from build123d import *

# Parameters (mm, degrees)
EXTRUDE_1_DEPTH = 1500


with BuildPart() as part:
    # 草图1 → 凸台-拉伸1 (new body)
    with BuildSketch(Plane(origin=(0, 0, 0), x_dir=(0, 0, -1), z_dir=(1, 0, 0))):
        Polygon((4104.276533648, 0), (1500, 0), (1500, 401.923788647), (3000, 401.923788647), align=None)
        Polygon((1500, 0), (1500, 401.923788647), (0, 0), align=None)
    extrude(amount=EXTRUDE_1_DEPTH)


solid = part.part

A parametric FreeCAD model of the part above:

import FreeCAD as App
import Part
import Sketcher
from FreeCAD import Vector
Q = App.Units.Quantity

doc = App.newDocument("Part")
body = doc.addObject("PartDesign::Body", "Body")

# Sketch on YZ plane
sketch1 = body.newObject("Sketcher::SketchObject", "Sketch")
sketch1.AttachmentSupport = (doc.getObject("YZ_Plane"), [""])
sketch1.MapMode = "FlatFace"
sketch1.addGeometry(Part.LineSegment(Vector(0, 0, 0), Vector(0, -4104.276534, 0)), False)
sketch1.addGeometry(Part.LineSegment(Vector(0, -4104.276534, 0), Vector(401.923789, -3000, 0)), False)
sketch1.addGeometry(Part.LineSegment(Vector(401.923789, -3000, 0), Vector(401.923789, -1500, 0)), False)
sketch1.addGeometry(Part.LineSegment(Vector(401.923789, -1500, 0), Vector(0, 0, 0)), False)
sketch1.addConstraint(Sketcher.Constraint("Coincident", 0, 2, 1, 1))
sketch1.addConstraint(Sketcher.Constraint("Coincident", 1, 2, 2, 1))
sketch1.addConstraint(Sketcher.Constraint("Coincident", 2, 2, 3, 1))
sketch1.addConstraint(Sketcher.Constraint("Coincident", 3, 2, 0, 1))
sketch1.addConstraint(Sketcher.Constraint("Vertical", 0))
sketch1.addConstraint(Sketcher.Constraint("Vertical", 2))
sketch1.addConstraint(Sketcher.Constraint("Coincident", 3, 2, -1, 1))
sketch1.addConstraint(Sketcher.Constraint("DistanceY", 2, 1, 2, 2, 1500.0))
sketch1.addConstraint(Sketcher.Constraint("Angle", 1, Q("70 deg")))
sketch1.addConstraint(Sketcher.Constraint("Angle", 3, Q("105 deg")))
sketch1.addConstraint(Sketcher.Constraint("DistanceY", 1, 2, -1, 1, 3000.0))
pad1 = body.newObject("PartDesign::Pad", "Pad")
pad1.Profile = sketch1
pad1.Length = 1500

doc.recompute()
